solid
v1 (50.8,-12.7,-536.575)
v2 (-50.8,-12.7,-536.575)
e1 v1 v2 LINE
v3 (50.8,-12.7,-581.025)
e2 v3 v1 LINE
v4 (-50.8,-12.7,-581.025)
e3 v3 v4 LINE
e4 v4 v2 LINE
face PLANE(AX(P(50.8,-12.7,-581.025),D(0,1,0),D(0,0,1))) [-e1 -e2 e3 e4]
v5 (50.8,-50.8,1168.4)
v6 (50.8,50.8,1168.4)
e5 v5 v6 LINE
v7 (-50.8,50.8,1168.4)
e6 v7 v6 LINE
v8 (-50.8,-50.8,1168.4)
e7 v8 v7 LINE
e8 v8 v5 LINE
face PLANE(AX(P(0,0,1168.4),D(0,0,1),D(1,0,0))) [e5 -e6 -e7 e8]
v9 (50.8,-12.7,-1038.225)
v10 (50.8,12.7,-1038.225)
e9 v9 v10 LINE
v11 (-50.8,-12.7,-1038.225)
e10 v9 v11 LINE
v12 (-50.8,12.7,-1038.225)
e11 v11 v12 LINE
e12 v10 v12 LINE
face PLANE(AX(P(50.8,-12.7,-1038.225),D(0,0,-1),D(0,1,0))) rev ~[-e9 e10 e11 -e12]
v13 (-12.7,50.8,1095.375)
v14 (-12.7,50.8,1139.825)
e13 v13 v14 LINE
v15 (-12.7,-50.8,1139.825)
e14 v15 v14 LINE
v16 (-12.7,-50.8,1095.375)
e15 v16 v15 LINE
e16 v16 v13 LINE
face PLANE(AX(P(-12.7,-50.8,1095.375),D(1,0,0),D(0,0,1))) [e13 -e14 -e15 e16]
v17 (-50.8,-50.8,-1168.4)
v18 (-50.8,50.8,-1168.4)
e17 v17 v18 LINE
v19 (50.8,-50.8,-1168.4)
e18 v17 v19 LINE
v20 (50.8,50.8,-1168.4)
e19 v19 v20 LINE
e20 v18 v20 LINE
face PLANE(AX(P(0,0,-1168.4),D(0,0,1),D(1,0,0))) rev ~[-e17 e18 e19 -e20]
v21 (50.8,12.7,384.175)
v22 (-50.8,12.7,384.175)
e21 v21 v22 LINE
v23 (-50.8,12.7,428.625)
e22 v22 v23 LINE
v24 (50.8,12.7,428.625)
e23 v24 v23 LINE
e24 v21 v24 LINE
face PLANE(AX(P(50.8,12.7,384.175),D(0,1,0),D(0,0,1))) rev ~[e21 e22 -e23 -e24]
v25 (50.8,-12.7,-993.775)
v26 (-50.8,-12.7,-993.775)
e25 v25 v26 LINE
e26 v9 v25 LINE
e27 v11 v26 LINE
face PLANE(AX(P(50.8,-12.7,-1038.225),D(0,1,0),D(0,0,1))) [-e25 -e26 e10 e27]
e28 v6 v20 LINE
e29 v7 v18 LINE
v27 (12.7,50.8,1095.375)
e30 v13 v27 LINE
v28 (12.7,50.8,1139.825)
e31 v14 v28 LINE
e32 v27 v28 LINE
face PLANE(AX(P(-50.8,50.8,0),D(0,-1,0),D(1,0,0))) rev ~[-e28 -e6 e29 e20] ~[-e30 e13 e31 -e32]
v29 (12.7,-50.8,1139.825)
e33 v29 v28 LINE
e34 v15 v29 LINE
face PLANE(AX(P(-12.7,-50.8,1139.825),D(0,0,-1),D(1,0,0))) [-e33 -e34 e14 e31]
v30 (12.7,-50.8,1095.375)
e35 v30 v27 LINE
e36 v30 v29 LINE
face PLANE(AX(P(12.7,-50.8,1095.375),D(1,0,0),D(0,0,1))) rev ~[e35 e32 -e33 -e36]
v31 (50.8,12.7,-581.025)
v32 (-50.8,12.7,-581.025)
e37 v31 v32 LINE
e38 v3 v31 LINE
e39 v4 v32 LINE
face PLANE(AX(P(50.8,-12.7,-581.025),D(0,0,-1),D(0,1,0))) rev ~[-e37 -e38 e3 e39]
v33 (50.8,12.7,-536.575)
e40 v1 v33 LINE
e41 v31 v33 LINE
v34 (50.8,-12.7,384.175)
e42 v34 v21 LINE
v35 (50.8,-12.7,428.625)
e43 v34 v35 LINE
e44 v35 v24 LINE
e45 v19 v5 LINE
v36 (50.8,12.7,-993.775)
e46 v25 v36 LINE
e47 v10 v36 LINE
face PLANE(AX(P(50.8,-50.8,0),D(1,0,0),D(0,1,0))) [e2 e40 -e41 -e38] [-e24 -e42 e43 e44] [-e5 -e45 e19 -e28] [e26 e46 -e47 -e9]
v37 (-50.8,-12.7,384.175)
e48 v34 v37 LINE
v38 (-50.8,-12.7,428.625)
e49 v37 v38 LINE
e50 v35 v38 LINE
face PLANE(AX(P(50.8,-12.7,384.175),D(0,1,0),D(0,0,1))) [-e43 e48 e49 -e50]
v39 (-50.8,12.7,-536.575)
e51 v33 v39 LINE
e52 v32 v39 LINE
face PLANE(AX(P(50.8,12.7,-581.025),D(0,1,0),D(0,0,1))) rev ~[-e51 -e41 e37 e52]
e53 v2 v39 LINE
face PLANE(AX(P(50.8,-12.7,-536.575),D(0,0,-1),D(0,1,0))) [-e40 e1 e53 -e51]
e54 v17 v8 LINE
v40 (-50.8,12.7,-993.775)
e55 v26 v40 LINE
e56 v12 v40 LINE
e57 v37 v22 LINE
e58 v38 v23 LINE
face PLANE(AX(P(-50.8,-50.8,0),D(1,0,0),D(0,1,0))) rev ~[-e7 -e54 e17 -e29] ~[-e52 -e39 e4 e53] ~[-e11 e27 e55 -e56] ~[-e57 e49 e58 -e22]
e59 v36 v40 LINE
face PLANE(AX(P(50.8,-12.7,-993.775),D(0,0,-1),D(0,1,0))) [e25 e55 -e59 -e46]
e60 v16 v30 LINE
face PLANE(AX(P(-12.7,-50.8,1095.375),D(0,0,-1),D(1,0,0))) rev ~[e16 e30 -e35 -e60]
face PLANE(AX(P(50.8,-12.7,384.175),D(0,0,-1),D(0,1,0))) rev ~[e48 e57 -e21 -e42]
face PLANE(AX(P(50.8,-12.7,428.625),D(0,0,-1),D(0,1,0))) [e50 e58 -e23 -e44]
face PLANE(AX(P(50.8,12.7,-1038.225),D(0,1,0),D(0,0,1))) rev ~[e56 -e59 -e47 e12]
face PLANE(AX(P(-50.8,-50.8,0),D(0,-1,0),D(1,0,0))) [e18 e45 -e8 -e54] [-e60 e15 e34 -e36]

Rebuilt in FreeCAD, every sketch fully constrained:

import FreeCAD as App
import Part
import Sketcher
Q = App.Units.Quantity


def add_polygon(sketch, points):
    """Adds a closed chain of lines whose ends are joined by coincident constraints."""
    first, n = sketch.GeometryCount, len(points)
    for a, b in zip(points, points[1:] + points[:1]):
        sketch.addGeometry(Part.LineSegment(App.Vector(*a, 0), App.Vector(*b, 0)), False)
    for i in range(n):
        sketch.addConstraint(Sketcher.Constraint("Coincident", first + i, 2, first + (i + 1) % n, 1))

doc = App.newDocument("Part")
body = doc.addObject("PartDesign::Body", "Body")

sketch1 = body.newObject("Sketcher::SketchObject", "Sketch")
sketch1.AttachmentSupport = (doc.getObject("XY_Plane"), [""])
sketch1.MapMode = "FlatFace"
add_polygon(sketch1, [(-51, 51), (-51, -51), (51, -51), (51, 51)])
sketch1.addConstraint([
    Sketcher.Constraint("Vertical", 0),
    Sketcher.Constraint("Horizontal", 1),
    Sketcher.Constraint("Vertical", 2),
    Sketcher.Constraint("Horizontal", 3),
    Sketcher.Constraint("Symmetric", 0, 2, 2, 2, -1, 1),
    Sketcher.Constraint("Equal", 3, 0),
    Sketcher.Constraint("DistanceX", 1, 1, 1, 2, Q("4 in")),
])
pad1 = body.newObject("PartDesign::Pad", "Pad")
pad1.Profile = sketch1
pad1.Length = Q("92 in")
pad1.Midplane = True

sketch2 = body.newObject("Sketcher::SketchObject", "Sketch001")
sketch2.AttachmentSupport = (doc.getObject("XZ_Plane"), [""])
sketch2.MapMode = "FlatFace"
sketch2.AttachmentOffset = App.Placement(App.Vector(0, 0, 2 * 25.4), App.Rotation())
add_polygon(sketch2, [(-13, 1140), (-13, 1095), (13, 1095), (13, 1140)])
sketch2.addConstraint([
    Sketcher.Constraint("Vertical", 0),
    Sketcher.Constraint("Horizontal", 1),
    Sketcher.Constraint("Vertical", 2),
    Sketcher.Constraint("Horizontal", 3),
    Sketcher.Constraint("DistanceX", 1, 1, 1, 2, Q("1 in")),
    Sketcher.Constraint("DistanceY", 0, 2, 0, 1, Q("1.75 in")),
    Sketcher.Constraint("DistanceX", 0, 2, -1, 1, Q("0.5 in")),
    Sketcher.Constraint("DistanceY", -1, 1, 0, 2, Q("43.125 in")),
])
pocket1 = body.newObject("PartDesign::Pocket", "Pocket")
pocket1.Profile = sketch2
pocket1.Type = "ThroughAll"

sketch3 = body.newObject("Sketcher::SketchObject", "Sketch002")
sketch3.AttachmentSupport = (doc.getObject("YZ_Plane"), [""])
sketch3.MapMode = "FlatFace"
sketch3.AttachmentOffset = App.Placement(App.Vector(0, 0, 2 * 25.4), App.Rotation())
add_polygon(sketch3, [(-13, 429), (-13, 384), (13, 384), (13, 429)])
sketch3.addConstraint([
    Sketcher.Constraint("Vertical", 0),
    Sketcher.Constraint("Horizontal", 1),
    Sketcher.Constraint("Vertical", 2),
    Sketcher.Constraint("Horizontal", 3),
    Sketcher.Constraint("DistanceX", 1, 1, 1, 2, Q("1 in")),
    Sketcher.Constraint("DistanceY", 0, 2, 0, 1, Q("1.75 in")),
    Sketcher.Constraint("DistanceX", 0, 2, -1, 1, Q("0.5 in")),
    Sketcher.Constraint("DistanceY", -1, 1, 0, 2, Q("15.125 in")),
])
pocket2 = body.newObject("PartDesign::Pocket", "Pocket001")
pocket2.Profile = sketch3
pocket2.Type = "ThroughAll"

sketch4 = body.newObject("Sketcher::SketchObject", "Sketch003")
sketch4.AttachmentSupport = (doc.getObject("YZ_Plane"), [""])
sketch4.MapMode = "FlatFace"
sketch4.AttachmentOffset = App.Placement(App.Vector(0, 0, 2 * 25.4), App.Rotation())
add_polygon(sketch4, [(-13, -537), (-13, -581), (13, -581), (13, -537)])
sketch4.addConstraint([
    Sketcher.Constraint("Vertical", 0),
    Sketcher.Constraint("Horizontal", 1),
    Sketcher.Constraint("Vertical", 2),
    Sketcher.Constraint("Horizontal", 3),
    Sketcher.Constraint("DistanceX", 1, 1, 1, 2, Q("1 in")),
    Sketcher.Constraint("DistanceY", 0, 2, 0, 1, Q("1.75 in")),
    Sketcher.Constraint("DistanceX", 0, 2, -1, 1, Q("0.5 in")),
    Sketcher.Constraint("DistanceY", 0, 2, -1, 1, Q("22.875 in")),
])
pocket3 = body.newObject("PartDesign::Pocket", "Pocket002")
pocket3.Profile = sketch4
pocket3.Type = "ThroughAll"

sketch5 = body.newObject("Sketcher::SketchObject", "Sketch004")
sketch5.AttachmentSupport = (doc.getObject("YZ_Plane"), [""])
sketch5.MapMode = "FlatFace"
sketch5.AttachmentOffset = App.Placement(App.Vector(0, 0, 2 * 25.4), App.Rotation())
add_polygon(sketch5, [(-13, -994), (-13, -1038), (13, -1038), (13, -994)])
sketch5.addConstraint([
    Sketcher.Constraint("Vertical", 0),
    Sketcher.Constraint("Horizontal", 1),
    Sketcher.Constraint("Vertical", 2),
    Sketcher.Constraint("Horizontal", 3),
    Sketcher.Constraint("DistanceX", 1, 1, 1, 2, Q("1 in")),
    Sketcher.Constraint("DistanceY", 0, 2, 0, 1, Q("1.75 in")),
    Sketcher.Constraint("DistanceX", 0, 2, -1, 1, Q("0.5 in")),
    Sketcher.Constraint("DistanceY", 0, 2, -1, 1, Q("40.875 in")),
])
pocket4 = body.newObject("PartDesign::Pocket", "Pocket003")
pocket4.Profile = sketch5
pocket4.Type = "ThroughAll"

doc.recompute()
